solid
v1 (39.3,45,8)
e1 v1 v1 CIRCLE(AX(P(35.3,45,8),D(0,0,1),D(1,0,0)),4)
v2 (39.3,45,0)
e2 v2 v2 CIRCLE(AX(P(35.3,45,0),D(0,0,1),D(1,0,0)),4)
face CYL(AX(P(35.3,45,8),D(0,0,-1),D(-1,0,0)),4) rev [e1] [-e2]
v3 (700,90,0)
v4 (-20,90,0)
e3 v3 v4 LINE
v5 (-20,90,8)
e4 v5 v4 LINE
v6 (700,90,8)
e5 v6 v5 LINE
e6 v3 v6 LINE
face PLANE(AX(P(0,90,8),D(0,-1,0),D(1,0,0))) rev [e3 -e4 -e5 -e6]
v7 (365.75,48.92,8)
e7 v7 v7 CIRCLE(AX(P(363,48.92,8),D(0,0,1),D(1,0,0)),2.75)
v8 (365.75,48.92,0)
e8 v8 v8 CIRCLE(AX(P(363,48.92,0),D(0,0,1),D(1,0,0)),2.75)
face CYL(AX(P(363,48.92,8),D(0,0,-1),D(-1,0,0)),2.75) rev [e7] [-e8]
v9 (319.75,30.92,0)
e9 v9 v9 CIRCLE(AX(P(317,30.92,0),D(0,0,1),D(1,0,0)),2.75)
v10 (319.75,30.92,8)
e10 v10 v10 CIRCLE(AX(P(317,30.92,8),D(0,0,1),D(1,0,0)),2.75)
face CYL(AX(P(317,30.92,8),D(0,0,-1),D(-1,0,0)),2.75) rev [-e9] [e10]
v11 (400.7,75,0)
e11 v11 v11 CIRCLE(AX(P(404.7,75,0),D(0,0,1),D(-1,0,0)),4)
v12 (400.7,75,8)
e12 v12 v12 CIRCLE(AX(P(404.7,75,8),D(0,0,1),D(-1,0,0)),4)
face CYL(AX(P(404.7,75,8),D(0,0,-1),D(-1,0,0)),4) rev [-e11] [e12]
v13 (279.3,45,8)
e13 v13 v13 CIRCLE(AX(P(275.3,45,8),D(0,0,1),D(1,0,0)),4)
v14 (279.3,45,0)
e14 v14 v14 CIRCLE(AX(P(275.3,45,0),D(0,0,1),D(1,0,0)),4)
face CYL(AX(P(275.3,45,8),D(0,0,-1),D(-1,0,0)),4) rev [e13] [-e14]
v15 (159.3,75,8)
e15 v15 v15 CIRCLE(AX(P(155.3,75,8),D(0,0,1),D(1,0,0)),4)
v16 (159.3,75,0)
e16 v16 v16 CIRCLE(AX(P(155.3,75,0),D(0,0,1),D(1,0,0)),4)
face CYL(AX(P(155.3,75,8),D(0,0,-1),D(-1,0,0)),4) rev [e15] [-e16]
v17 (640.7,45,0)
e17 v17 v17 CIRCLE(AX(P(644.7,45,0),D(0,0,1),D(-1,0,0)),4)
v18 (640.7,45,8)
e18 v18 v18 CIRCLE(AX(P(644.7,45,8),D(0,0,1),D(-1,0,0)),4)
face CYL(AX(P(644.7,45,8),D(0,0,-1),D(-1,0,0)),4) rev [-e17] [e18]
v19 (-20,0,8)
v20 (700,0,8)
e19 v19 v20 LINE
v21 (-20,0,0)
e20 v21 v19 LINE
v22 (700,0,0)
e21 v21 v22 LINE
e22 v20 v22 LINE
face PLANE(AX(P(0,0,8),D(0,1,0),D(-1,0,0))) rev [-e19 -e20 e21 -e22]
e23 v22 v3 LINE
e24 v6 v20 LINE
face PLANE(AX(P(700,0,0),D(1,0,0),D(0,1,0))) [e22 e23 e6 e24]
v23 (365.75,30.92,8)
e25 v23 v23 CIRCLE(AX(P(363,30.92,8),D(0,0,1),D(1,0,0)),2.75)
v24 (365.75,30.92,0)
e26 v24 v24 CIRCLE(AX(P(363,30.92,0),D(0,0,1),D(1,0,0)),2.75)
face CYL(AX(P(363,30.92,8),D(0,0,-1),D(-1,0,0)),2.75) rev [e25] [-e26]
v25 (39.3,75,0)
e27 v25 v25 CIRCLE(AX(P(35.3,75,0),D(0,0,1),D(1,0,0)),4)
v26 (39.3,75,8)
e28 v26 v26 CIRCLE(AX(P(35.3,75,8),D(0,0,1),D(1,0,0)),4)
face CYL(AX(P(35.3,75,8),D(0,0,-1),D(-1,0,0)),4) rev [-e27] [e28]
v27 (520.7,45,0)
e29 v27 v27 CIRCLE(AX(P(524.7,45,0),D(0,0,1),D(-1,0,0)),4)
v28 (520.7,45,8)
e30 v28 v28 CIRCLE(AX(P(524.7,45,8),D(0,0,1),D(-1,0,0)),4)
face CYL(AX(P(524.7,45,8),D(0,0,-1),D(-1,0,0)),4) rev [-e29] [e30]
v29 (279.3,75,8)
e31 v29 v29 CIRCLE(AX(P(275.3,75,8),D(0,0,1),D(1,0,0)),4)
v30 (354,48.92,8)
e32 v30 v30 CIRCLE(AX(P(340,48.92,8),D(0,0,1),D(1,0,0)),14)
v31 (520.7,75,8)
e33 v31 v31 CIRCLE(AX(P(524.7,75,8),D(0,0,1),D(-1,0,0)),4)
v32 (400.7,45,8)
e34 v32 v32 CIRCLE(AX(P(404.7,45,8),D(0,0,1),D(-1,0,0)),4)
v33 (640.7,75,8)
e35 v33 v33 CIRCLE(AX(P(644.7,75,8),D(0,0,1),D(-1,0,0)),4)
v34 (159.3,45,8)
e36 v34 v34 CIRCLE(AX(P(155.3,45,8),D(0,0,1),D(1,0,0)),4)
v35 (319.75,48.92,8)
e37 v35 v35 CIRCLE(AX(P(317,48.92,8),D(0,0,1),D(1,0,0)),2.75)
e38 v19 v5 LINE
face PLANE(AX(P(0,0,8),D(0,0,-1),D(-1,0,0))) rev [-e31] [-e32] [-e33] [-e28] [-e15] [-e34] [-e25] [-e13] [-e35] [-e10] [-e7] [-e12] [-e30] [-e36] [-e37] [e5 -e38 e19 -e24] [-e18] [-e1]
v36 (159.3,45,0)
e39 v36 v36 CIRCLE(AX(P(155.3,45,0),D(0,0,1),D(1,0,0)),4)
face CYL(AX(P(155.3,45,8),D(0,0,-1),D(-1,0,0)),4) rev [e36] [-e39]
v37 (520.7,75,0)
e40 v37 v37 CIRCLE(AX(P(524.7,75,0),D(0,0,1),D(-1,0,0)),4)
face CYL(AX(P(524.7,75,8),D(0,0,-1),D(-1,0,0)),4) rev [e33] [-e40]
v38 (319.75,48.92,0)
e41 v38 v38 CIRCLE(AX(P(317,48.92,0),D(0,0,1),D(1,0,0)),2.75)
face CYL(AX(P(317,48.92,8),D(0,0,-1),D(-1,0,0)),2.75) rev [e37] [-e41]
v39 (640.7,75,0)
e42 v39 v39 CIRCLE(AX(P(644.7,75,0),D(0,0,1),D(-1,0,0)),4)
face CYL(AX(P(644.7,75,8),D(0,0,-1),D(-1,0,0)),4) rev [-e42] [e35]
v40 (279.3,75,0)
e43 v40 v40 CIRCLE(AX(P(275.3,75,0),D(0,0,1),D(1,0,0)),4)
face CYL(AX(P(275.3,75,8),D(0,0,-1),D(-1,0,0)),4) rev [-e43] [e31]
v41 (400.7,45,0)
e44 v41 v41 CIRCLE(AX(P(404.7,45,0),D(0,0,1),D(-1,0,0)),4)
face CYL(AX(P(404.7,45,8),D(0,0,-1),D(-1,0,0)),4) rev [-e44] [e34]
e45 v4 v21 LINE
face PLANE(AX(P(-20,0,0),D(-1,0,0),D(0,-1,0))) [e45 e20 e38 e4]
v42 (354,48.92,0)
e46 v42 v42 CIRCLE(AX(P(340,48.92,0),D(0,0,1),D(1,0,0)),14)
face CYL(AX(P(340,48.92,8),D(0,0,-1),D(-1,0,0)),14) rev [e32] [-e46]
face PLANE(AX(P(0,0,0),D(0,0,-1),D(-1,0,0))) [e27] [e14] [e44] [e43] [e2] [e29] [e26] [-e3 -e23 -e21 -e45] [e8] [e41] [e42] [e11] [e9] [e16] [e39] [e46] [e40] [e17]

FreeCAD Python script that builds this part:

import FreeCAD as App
import Part
import Sketcher
from FreeCAD import Vector
Q = App.Units.Quantity

doc = App.newDocument("Part")
params = doc.addObject("Spreadsheet::Sheet", "Params")
for row, (alias, value) in enumerate([
    ("sketch1_diameter", "8 mm"),
    ("sketch1_diameter2", "28 mm"),
    ("sketch1_diameter3", "5.5 mm"),
    ("sketch1_width", "680 mm"),
    ("sketch1_height", "90 mm"),
    ("pad1_length", "8 mm"),
    ("sketch2_width", "90 mm"),
    ("sketch2_height", "8 mm"),
    ("pad2_length", "20 mm"),
    ("sketch3_width", "90 mm"),
    ("sketch3_height", "8 mm"),
    ("pad3_length", "20 mm"),
], start=1):
    params.set(f"A{row}", alias)
    params.set(f"B{row}", "=" + value)
    params.setAlias(f"B{row}", alias)

body = doc.addObject("PartDesign::Body", "Body")

# Sketch on XY plane
sketch1 = body.newObject("Sketcher::SketchObject", "Sketch")
sketch1.AttachmentSupport = (doc.getObject("XY_Plane"), [""])
sketch1.MapMode = "FlatFace"
sketch1.addGeometry([
    Part.LineSegment(Vector(0, 90, 0), Vector(0, 0, 0)),  # 0
    Part.LineSegment(Vector(0, 0, 0), Vector(680, 0, 0)),  # 1
    Part.LineSegment(Vector(680, 0, 0), Vector(680, 90, 0)),  # 2
    Part.LineSegment(Vector(680, 90, 0), Vector(0, 90, 0)),  # 3
    Part.Circle(Vector(317, 30.9, 0), Vector(0, 0, 1), 2.8),  # 4
    Part.Circle(Vector(35.3, 45, 0), Vector(0, 0, 1), 4),  # 5
    Part.Circle(Vector(155.3, 45, 0), Vector(0, 0, 1), 4),  # 6
    Part.Circle(Vector(275.3, 45, 0), Vector(0, 0, 1), 4),  # 7
    Part.Circle(Vector(317, 48.9, 0), Vector(0, 0, 1), 2.8),  # 8
    Part.Circle(Vector(340, 48.9, 0), Vector(0, 0, 1), 14),  # 9
    Part.Circle(Vector(363, 30.9, 0), Vector(0, 0, 1), 2.8),  # 10
    Part.Circle(Vector(404.7, 45, 0), Vector(0, 0, 1), 4),  # 11
    Part.Circle(Vector(363, 48.9, 0), Vector(0, 0, 1), 2.8),  # 12
    Part.Circle(Vector(524.7, 45, 0), Vector(0, 0, 1), 4),  # 13
    Part.Circle(Vector(644.7, 45, 0), Vector(0, 0, 1), 4),  # 14
    Part.Circle(Vector(35.3, 75, 0), Vector(0, 0, 1), 4),  # 15
    Part.Circle(Vector(155.3, 75, 0), Vector(0, 0, 1), 4),  # 16
    Part.Circle(Vector(275.3, 75, 0), Vector(0, 0, 1), 4),  # 17
    Part.Circle(Vector(404.7, 75, 0), Vector(0, 0, 1), 4),  # 18
    Part.Circle(Vector(524.7, 75, 0), Vector(0, 0, 1), 4),  # 19
    Part.Circle(Vector(644.7, 75, 0), Vector(0, 0, 1), 4),  # 20
], False)
sketch1.addConstraint([
    Sketcher.Constraint("Coincident", 0, 2, 1, 1),
    Sketcher.Constraint("Coincident", 1, 2, 2, 1),
    Sketcher.Constraint("Coincident", 2, 2, 3, 1),
    Sketcher.Constraint("Coincident", 3, 2, 0, 1),
    Sketcher.Constraint("Vertical", 0),
    Sketcher.Constraint("Horizontal", 1),
    Sketcher.Constraint("Vertical", 2),
    Sketcher.Constraint("Horizontal", 3),
    Sketcher.Constraint("Coincident", 0, 2, -1, 1),
    Sketcher.Constraint("Equal", 5, 6),
    Sketcher.Constraint("Equal", 6, 7),
    Sketcher.Constraint("Equal", 4, 8),
    Sketcher.Constraint("Equal", 8, 10),
    Sketcher.Constraint("Equal", 7, 11),
    Sketcher.Constraint("Equal", 10, 12),
    Sketcher.Constraint("Equal", 11, 13),
    Sketcher.Constraint("Equal", 13, 14),
    Sketcher.Constraint("Equal", 14, 15),
    Sketcher.Constraint("Equal", 15, 16),
    Sketcher.Constraint("Equal", 16, 17),
    Sketcher.Constraint("Equal", 17, 18),
    Sketcher.Constraint("Equal", 18, 19),
    Sketcher.Constraint("Equal", 19, 20),
    Sketcher.Constraint("Horizontal", 5, 3, 6, 3),
    Sketcher.Constraint("Horizontal", 6, 3, 7, 3),
    Sketcher.Constraint("Horizontal", 8, 3, 9, 3),
    Sketcher.Constraint("Horizontal", 4, 3, 10, 3),
    Sketcher.Constraint("Horizontal", 7, 3, 11, 3),
    Sketcher.Constraint("Horizontal", 9, 3, 12, 3),
    Sketcher.Constraint("Horizontal", 11, 3, 13, 3),
    Sketcher.Constraint("Horizontal", 13, 3, 14, 3),
    Sketcher.Constraint("Horizontal", 15, 3, 16, 3),
    Sketcher.Constraint("Horizontal", 16, 3, 17, 3),
    Sketcher.Constraint("Horizontal", 17, 3, 18, 3),
    Sketcher.Constraint("Horizontal", 18, 3, 19, 3),
    Sketcher.Constraint("Horizontal", 19, 3, 20, 3),
    Sketcher.Constraint("Vertical", 4, 3, 8, 3),
    Sketcher.Constraint("Vertical", 10, 3, 12, 3),
    Sketcher.Constraint("Vertical", 5, 3, 15, 3),
    Sketcher.Constraint("Vertical", 6, 3, 16, 3),
    Sketcher.Constraint("Vertical", 7, 3, 17, 3),
    Sketcher.Constraint("Vertical", 11, 3, 18, 3),
    Sketcher.Constraint("Vertical", 13, 3, 19, 3),
    Sketcher.Constraint("Vertical", 14, 3, 20, 3),
    Sketcher.Constraint("Diameter", 5, Q("8 mm")),
    Sketcher.Constraint("Diameter", 9, Q("28 mm")),
    Sketcher.Constraint("Diameter", 4, Q("5.5 mm")),
    Sketcher.Constraint("DistanceX", 1, 1, 1, 2, Q("680 mm")),
    Sketcher.Constraint("DistanceY", 0, 2, 0, 1, Q("90 mm")),
    Sketcher.Constraint("DistanceX", -1, 1, 4, 3, Q("317 mm")),
    Sketcher.Constraint("DistanceY", -1, 1, 5, 3, Q("45 mm")),
    Sketcher.Constraint("DistanceX", -1, 1, 9, 3, Q("340 mm")),
    Sketcher.Constraint("DistanceX", -1, 1, 10, 3, Q("363 mm")),
    Sketcher.Constraint("DistanceY", -1, 1, 15, 3, Q("75 mm")),
    Sketcher.Constraint("DistanceX", 5, 3, 6, 3, Q("120 mm")),
    Sketcher.Constraint("DistanceX", 6, 3, 7, 3, Q("120 mm")),
    Sketcher.Constraint("DistanceY", 4, 3, 8, 3, Q("18 mm")),
    Sketcher.Constraint("DistanceX", 11, 3, 13, 3, Q("120 mm")),
    Sketcher.Constraint("DistanceX", 13, 3, 14, 3, Q("120 mm")),
    Sketcher.Constraint("DistanceX", -1, 1, 5, 3, Q("35.3 mm")),
    Sketcher.Constraint("DistanceX", -1, 1, 11, 3, Q("404.7 mm")),
    Sketcher.Constraint("DistanceY", -1, 1, 4, 3, Q("30.92 mm")),
])
sketch1.setExpression("Constraints[44]", "Params.sketch1_diameter")
sketch1.setExpression("Constraints[45]", "Params.sketch1_diameter2")
sketch1.setExpression("Constraints[46]", "Params.sketch1_diameter3")
sketch1.setExpression("Constraints[47]", "Params.sketch1_width")
sketch1.setExpression("Constraints[48]", "Params.sketch1_height")
pad1 = body.newObject("PartDesign::Pad", "Pad")
pad1.Profile = sketch1
pad1.setExpression("Length", "Params.pad1_length")

# Sketch on YZ plane
sketch2 = body.newObject("Sketcher::SketchObject", "Sketch001")
sketch2.AttachmentSupport = (doc.getObject("YZ_Plane"), [""])
sketch2.MapMode = "FlatFace"
sketch2.addGeometry([
    Part.LineSegment(Vector(90, 0, 0), Vector(0, 0, 0)),
    Part.LineSegment(Vector(0, 0, 0), Vector(0, 8, 0)),
    Part.LineSegment(Vector(0, 8, 0), Vector(90, 8, 0)),
    Part.LineSegment(Vector(90, 8, 0), Vector(90, 0, 0)),
], False)
sketch2.addConstraint([
    Sketcher.Constraint("Coincident", 0, 2, 1, 1),
    Sketcher.Constraint("Coincident", 1, 2, 2, 1),
    Sketcher.Constraint("Coincident", 2, 2, 3, 1),
    Sketcher.Constraint("Coincident", 3, 2, 0, 1),
    Sketcher.Constraint("Horizontal", 0),
    Sketcher.Constraint("Vertical", 1),
    Sketcher.Constraint("Horizontal", 2),
    Sketcher.Constraint("Vertical", 3),
    Sketcher.Constraint("Coincident", 0, 2, -1, 1),
    Sketcher.Constraint("DistanceX", 0, 2, 0, 1, Q("90 mm")),
    Sketcher.Constraint("DistanceY", 1, 1, 1, 2, Q("8 mm")),
])
sketch2.setExpression("Constraints[9]", "Params.sketch2_width")
sketch2.setExpression("Constraints[10]", "Params.sketch2_height")
pad2 = body.newObject("PartDesign::Pad", "Pad001")
pad2.Profile = sketch2
pad2.setExpression("Length", "Params.pad2_length")
pad2.Reversed = True

# Sketch on YZ plane
sketch3 = body.newObject("Sketcher::SketchObject", "Sketch002")
sketch3.AttachmentSupport = (doc.getObject("YZ_Plane"), [""])
sketch3.MapMode = "FlatFace"
sketch3.AttachmentOffset = App.Placement(Vector(0, 0, 680), App.Rotation())
sketch3.addGeometry([
    Part.LineSegment(Vector(90, 8, 0), Vector(0, 8, 0)),
    Part.LineSegment(Vector(0, 8, 0), Vector(0, 0, 0)),
    Part.LineSegment(Vector(0, 0, 0), Vector(90, 0, 0)),
    Part.LineSegment(Vector(90, 0, 0), Vector(90, 8, 0)),
], False)
sketch3.addConstraint([
    Sketcher.Constraint("Coincident", 0, 2, 1, 1),
    Sketcher.Constraint("Coincident", 1, 2, 2, 1),
    Sketcher.Constraint("Coincident", 2, 2, 3, 1),
    Sketcher.Constraint("Coincident", 3, 2, 0, 1),
    Sketcher.Constraint("Horizontal", 0),
    Sketcher.Constraint("Vertical", 1),
    Sketcher.Constraint("Horizontal", 2),
    Sketcher.Constraint("Vertical", 3),
    Sketcher.Constraint("Coincident", 1, 2, -1, 1),
    Sketcher.Constraint("DistanceX", 0, 2, 0, 1, Q("90 mm")),
    Sketcher.Constraint("DistanceY", 1, 2, 1, 1, Q("8 mm")),
])
sketch3.setExpression("Constraints[9]", "Params.sketch3_width")
sketch3.setExpression("Constraints[10]", "Params.sketch3_height")
pad3 = body.newObject("PartDesign::Pad", "Pad002")
pad3.Profile = sketch3
pad3.setExpression("Length", "Params.pad3_length")

doc.recompute()
